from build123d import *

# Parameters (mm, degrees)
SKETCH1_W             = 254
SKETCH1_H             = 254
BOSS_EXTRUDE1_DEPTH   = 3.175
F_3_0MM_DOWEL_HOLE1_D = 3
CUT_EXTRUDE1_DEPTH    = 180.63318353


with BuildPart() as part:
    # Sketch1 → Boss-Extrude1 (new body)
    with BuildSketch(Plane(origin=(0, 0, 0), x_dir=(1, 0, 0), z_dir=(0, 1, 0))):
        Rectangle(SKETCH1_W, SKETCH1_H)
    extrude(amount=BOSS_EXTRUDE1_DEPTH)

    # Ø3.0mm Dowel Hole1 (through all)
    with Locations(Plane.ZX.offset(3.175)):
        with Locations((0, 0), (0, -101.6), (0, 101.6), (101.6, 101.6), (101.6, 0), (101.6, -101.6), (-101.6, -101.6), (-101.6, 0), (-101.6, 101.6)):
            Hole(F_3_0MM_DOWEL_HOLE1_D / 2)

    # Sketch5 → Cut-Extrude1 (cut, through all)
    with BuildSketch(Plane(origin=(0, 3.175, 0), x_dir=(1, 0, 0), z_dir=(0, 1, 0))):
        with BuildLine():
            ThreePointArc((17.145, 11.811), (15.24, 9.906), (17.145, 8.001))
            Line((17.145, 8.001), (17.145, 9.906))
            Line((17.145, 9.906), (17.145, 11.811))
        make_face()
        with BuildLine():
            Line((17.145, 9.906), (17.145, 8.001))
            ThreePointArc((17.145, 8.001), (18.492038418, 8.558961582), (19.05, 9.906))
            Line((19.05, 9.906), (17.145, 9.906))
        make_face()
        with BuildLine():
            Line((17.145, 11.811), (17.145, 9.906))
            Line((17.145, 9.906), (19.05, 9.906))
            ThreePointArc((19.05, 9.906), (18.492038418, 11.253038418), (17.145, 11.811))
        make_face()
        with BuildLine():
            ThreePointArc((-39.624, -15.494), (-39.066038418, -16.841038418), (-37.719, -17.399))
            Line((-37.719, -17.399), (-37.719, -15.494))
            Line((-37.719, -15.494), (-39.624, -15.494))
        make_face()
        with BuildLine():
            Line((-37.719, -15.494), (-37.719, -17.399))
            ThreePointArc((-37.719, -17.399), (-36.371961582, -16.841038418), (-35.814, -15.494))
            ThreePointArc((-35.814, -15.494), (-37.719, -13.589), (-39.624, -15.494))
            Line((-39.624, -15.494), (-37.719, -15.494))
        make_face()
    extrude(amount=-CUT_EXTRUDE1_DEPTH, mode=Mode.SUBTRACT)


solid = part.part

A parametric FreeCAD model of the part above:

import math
import FreeCAD as App
import Part
import Sketcher
Q = App.Units.Quantity

doc = App.newDocument("Part")
params = doc.addObject("Spreadsheet::Sheet", "Params")
for row, (alias, value) in enumerate([
    ("sketch1_width", "10 in"),
    ("pad1_length", "0.125 in"),
    ("hole_diameter", "3 mm"),
    ("sketch3_radius", "0.075 in"),
], start=1):
    params.set(f"A{row}", alias)
    params.set(f"B{row}", "=" + value)
    params.setAlias(f"B{row}", alias)

body = doc.addObject("PartDesign::Body", "Body")

sketch1 = body.newObject("Sketcher::SketchObject", "Sketch")
sketch1.AttachmentSupport = (doc.getObject("XZ_Plane"), [""])
sketch1.MapMode = "FlatFace"
sketch1.addGeometry([
    Part.LineSegment(App.Vector(-127, -127, 0), App.Vector(-127, 127, 0)),
    Part.LineSegment(App.Vector(-127, 127, 0), App.Vector(127, 127, 0)),
    Part.LineSegment(App.Vector(127, 127, 0), App.Vector(127, -127, 0)),
    Part.LineSegment(App.Vector(127, -127, 0), App.Vector(-127, -127, 0)),
], False)
sketch1.addConstraint([
    Sketcher.Constraint("Coincident", 0, 2, 1, 1),
    Sketcher.Constraint("Coincident", 1, 2, 2, 1),
    Sketcher.Constraint("Coincident", 2, 2, 3, 1),
    Sketcher.Constraint("Coincident", 3, 2, 0, 1),
    Sketcher.Constraint("Vertical", 0),
    Sketcher.Constraint("Horizontal", 1),
    Sketcher.Constraint("Vertical", 2),
    Sketcher.Constraint("Horizontal", 3),
    Sketcher.Constraint("Symmetric", 0, 2, 2, 2, -1, 1),
    Sketcher.Constraint("Equal", 3, 0),
    Sketcher.Constraint("DistanceX", 1, 1, 1, 2, Q("10 in")),
])
sketch1.setExpression("Constraints[10]", "Params.sketch1_width")
pad1 = body.newObject("PartDesign::Pad", "Pad")
pad1.Profile = sketch1
pad1.setExpression("Length", "Params.pad1_length")
pad1.Reversed = True

sketch2 = body.newObject("Sketcher::SketchObject", "Sketch001")
sketch2.AttachmentSupport = (doc.getObject("XZ_Plane"), [""])
sketch2.MapMode = "FlatFace"
sketch2.AttachmentOffset = App.Placement(App.Vector(0, 0, -0.125 * 25.4), App.Rotation())
sketch2.addGeometry([
    Part.Circle(App.Vector(0, 0, 0), App.Vector(0, 0, 1), 1.5),
    Part.Circle(App.Vector(-101.6, 0, 0), App.Vector(0, 0, 1), 1.5),
    Part.Circle(App.Vector(101.6, 0, 0), App.Vector(0, 0, 1), 1.5),
    Part.Circle(App.Vector(101.6, 101.6, 0), App.Vector(0, 0, 1), 1.5),
    Part.Circle(App.Vector(0, 101.6, 0), App.Vector(0, 0, 1), 1.5),
    Part.Circle(App.Vector(-101.6, 101.6, 0), App.Vector(0, 0, 1), 1.5),
    Part.Circle(App.Vector(-101.6, -101.6, 0), App.Vector(0, 0, 1), 1.5),
    Part.Circle(App.Vector(0, -101.6, 0), App.Vector(0, 0, 1), 1.5),
    Part.Circle(App.Vector(101.6, -101.6, 0), App.Vector(0, 0, 1), 1.5),
], False)
sketch2.addConstraint([
    Sketcher.Constraint("Coincident", 0, 3, -1, 1),
    Sketcher.Constraint("Equal", 0, 1),
    Sketcher.Constraint("Equal", 1, 2),
    Sketcher.Constraint("Equal", 2, 3),
    Sketcher.Constraint("Equal", 3, 4),
    Sketcher.Constraint("Equal", 4, 5),
    Sketcher.Constraint("Equal", 5, 6),
    Sketcher.Constraint("Equal", 6, 7),
    Sketcher.Constraint("Equal", 7, 8),
    Sketcher.Constraint("Symmetric", 1, 3, 2, 3, -1, 1),
    Sketcher.Constraint("Symmetric", 3, 3, 6, 3, -1, 1),
    Sketcher.Constraint("Symmetric", 4, 3, 7, 3, -1, 1),
    Sketcher.Constraint("Symmetric", 5, 3, 8, 3, -1, 1),
    Sketcher.Constraint("Symmetric", 3, 3, 5, 3, -2),
    Sketcher.Constraint("PointOnObject", 1, 3, -1),
    Sketcher.Constraint("PointOnObject", 4, 3, -2),
    Sketcher.Constraint("Horizontal", 3, 3, 4, 3),
    Sketcher.Constraint("Vertical", 2, 3, 3, 3),
    Sketcher.Constraint("DistanceX", 1, 3, -1, 1, Q("4 in")),
    Sketcher.Constraint("DistanceY", -1, 1, 3, 3, Q("4 in")),
    Sketcher.Constraint("Diameter", 0, Q("3 mm")),
])
doc.recompute()
hole = body.newObject("PartDesign::Hole", "Hole")
hole.Profile = sketch2
hole.ThreadType = "None"
hole.setExpression("Diameter", "Params.hole_diameter")
hole.DepthType = "ThroughAll"
hole.Reversed = True

sketch3 = body.newObject("Sketcher::SketchObject", "Sketch002")
sketch3.AttachmentSupport = (doc.getObject("XZ_Plane"), [""])
sketch3.MapMode = "FlatFace"
sketch3.AttachmentOffset = App.Placement(App.Vector(0, 0, -0.125 * 25.4), App.Rotation())
sketch3.addGeometry([
    Part.ArcOfCircle(Part.Circle(App.Vector(17.1, -9.9, 0), App.Vector(0, 0, 1), 1.9), math.radians(-90), math.radians(0)),
    Part.ArcOfCircle(Part.Circle(App.Vector(17.1, -9.9, 0), App.Vector(0, 0, 1), 1.9), math.radians(90), math.radians(270)),
    Part.ArcOfCircle(Part.Circle(App.Vector(17.1, -9.9, 0), App.Vector(0, 0, 1), 1.9), math.radians(0), math.radians(90)),
    Part.ArcOfCircle(Part.Circle(App.Vector(-37.7, 15.5, 0), App.Vector(0, 0, 1), 1.9), math.radians(90), math.radians(180)),
    Part.ArcOfCircle(Part.Circle(App.Vector(-37.7, 15.5, 0), App.Vector(0, 0, 1), 1.9), math.radians(0), math.radians(90)),
    Part.ArcOfCircle(Part.Circle(App.Vector(-37.7, 15.5, 0), App.Vector(0, 0, 1), 1.9), math.radians(180), math.radians(360)),
], False)
sketch3.addConstraint([
    Sketcher.Constraint("Tangent", 0, 1, 1, 2),
    Sketcher.Constraint("Tangent", 1, 1, 2, 2),
    Sketcher.Constraint("Tangent", 2, 1, 0, 2),
    Sketcher.Constraint("Tangent", 3, 1, 4, 2),
    Sketcher.Constraint("Tangent", 4, 1, 5, 2),
    Sketcher.Constraint("Tangent", 5, 1, 3, 2),
    Sketcher.Constraint("Equal", 2, 3),
    Sketcher.Constraint("Horizontal", 1, 3, 2, 1),
    Sketcher.Constraint("Horizontal", 5, 3, 4, 1),
    Sketcher.Constraint("Horizontal", 4, 1, 5, 1),
    Sketcher.Constraint("Vertical", 2, 3, 0, 1),
    Sketcher.Constraint("Vertical", 0, 1, 1, 1),
    Sketcher.Constraint("Vertical", 5, 3, 3, 1),
    Sketcher.Constraint("Radius", 0, Q("0.075 in")),
    Sketcher.Constraint("DistanceY", 0, 3, 3, 3, Q("1 in")),
    Sketcher.Constraint("DistanceY", 0, 3, -1, 1, Q("0.39 in")),
    Sketcher.Constraint("DistanceX", -1, 1, 2, 1, Q("0.75 in")),
    Sketcher.Constraint("DistanceX", 4, 1, -1, 1, Q("1.41 in")),
])
sketch3.setExpression("Constraints[13]", "Params.sketch3_radius")
pocket1 = body.newObject("PartDesign::Pocket", "Pocket")
pocket1.Profile = sketch3
pocket1.Type = "ThroughAll"
pocket1.Reversed = True

doc.recompute()
